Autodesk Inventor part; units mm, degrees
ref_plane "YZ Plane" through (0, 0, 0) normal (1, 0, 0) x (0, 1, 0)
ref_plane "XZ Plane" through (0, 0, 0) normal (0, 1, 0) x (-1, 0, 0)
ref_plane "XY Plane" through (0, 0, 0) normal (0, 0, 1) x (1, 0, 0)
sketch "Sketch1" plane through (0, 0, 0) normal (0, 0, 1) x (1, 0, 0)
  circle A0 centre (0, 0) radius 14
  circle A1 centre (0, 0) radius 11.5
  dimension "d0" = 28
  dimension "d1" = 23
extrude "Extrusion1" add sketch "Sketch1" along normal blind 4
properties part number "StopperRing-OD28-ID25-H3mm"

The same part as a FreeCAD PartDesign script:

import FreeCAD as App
import Part
import Sketcher
from FreeCAD import Vector
Q = App.Units.Quantity

doc = App.newDocument("Part")
body = doc.addObject("PartDesign::Body", "Body")

# Sketch on XY plane
sketch1 = body.newObject("Sketcher::SketchObject", "Sketch")
sketch1.AttachmentSupport = (doc.getObject("XY_Plane"), [""])
sketch1.MapMode = "FlatFace"
sketch1.addGeometry(Part.Circle(Vector(0, 0, 0), Vector(0, 0, 1), 14), False)
sketch1.addGeometry(Part.Circle(Vector(0, 0, 0), Vector(0, 0, 1), 12), False)
sketch1.addConstraint(Sketcher.Constraint("Coincident", 0, 3, -1, 1))
sketch1.addConstraint(Sketcher.Constraint("Coincident", 1, 3, -1, 1))
sketch1.addConstraint(Sketcher.Constraint("Diameter", 0, Q("28 mm")))
sketch1.addConstraint(Sketcher.Constraint("Diameter", 1, Q("23 mm")))
pad1 = body.newObject("PartDesign::Pad", "Pad")
pad1.Profile = sketch1
pad1.Length = 4

doc.recompute()
